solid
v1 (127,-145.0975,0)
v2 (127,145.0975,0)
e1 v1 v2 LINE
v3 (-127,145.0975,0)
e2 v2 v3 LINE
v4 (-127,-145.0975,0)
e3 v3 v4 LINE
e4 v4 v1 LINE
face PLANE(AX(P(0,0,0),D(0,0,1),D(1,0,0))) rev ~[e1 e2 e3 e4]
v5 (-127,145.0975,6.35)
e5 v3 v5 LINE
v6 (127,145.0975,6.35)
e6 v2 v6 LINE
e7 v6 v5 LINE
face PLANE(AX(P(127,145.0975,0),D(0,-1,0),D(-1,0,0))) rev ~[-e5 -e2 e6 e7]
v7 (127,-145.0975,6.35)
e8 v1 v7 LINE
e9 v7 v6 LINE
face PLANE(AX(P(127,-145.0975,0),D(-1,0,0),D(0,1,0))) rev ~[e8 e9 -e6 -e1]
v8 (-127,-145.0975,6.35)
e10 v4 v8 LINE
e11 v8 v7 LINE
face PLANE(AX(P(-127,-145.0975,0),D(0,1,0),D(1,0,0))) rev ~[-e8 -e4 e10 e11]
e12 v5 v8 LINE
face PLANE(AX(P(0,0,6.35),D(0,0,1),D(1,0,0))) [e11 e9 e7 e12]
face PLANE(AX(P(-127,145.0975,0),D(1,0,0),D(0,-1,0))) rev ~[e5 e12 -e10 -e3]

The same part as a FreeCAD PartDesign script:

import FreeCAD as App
import Part
import Sketcher

V = App.Vector
Q = App.Units.Quantity


def add_polygon(sketch, points):
    """Adds a closed chain of lines whose ends are joined by coincident constraints."""
    first, n = sketch.GeometryCount, len(points)
    for a, b in zip(points, points[1:] + points[:1]):
        sketch.addGeometry(Part.LineSegment(App.Vector(*a, 0), App.Vector(*b, 0)), False)
    for i in range(n):
        sketch.addConstraint(Sketcher.Constraint("Coincident", first + i, 2, first + (i + 1) % n, 1))

doc = App.newDocument("Part")
body = doc.addObject("PartDesign::Body", "Body")

sketch1 = doc.addObject("Sketcher::SketchObject", "Sketch")
body.addObject(sketch1)
sketch1.AttachmentSupport = (doc.XY_Plane, [""])
sketch1.MapMode = "FlatFace"
add_polygon(sketch1, [(-127, 145), (-127, -145), (127, -145), (127, 145)])
sketch1.addConstraint(Sketcher.Constraint("Vertical", 0))
sketch1.addConstraint(Sketcher.Constraint("Horizontal", 1))
sketch1.addConstraint(Sketcher.Constraint("Vertical", 2))
sketch1.addConstraint(Sketcher.Constraint("Horizontal", 3))
sketch1.addConstraint(Sketcher.Constraint("Symmetric", 0, 2, 2, 2, -1, 1))
sketch1.addConstraint(Sketcher.Constraint("DistanceX", 1, 1, 1, 2, Q("10 in")))
sketch1.addConstraint(Sketcher.Constraint("DistanceY", 0, 2, 0, 1, Q("11.425 in")))
pad1 = doc.addObject("PartDesign::Pad", "Pad")
body.addObject(pad1)
pad1.Profile = sketch1
pad1.Length = Q("0.25 in")

doc.recompute()
